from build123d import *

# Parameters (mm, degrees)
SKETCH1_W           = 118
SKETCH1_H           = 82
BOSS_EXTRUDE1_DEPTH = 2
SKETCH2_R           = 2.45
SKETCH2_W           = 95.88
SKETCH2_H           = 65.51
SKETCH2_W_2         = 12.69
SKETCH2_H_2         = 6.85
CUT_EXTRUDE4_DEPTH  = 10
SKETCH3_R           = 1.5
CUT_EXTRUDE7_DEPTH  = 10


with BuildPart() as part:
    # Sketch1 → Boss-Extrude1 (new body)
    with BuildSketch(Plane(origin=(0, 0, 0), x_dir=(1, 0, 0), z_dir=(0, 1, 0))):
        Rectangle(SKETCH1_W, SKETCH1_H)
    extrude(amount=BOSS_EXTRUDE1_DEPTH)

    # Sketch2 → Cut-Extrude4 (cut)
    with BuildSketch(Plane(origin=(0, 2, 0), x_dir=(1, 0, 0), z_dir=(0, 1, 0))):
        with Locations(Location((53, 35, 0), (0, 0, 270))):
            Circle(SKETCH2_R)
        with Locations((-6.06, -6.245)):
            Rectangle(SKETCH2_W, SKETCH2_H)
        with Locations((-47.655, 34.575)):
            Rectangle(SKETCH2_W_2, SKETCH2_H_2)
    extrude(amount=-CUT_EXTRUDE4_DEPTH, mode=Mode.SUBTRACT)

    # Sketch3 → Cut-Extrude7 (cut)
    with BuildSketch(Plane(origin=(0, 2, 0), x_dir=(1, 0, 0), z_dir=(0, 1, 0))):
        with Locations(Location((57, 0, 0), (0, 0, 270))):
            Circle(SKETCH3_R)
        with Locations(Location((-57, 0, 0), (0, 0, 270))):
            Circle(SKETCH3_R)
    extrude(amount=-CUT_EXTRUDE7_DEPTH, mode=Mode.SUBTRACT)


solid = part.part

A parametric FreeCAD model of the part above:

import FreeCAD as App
import Part
import Sketcher


def add_polygon(sketch, points):
    """Adds a closed chain of lines whose ends are joined by coincident constraints."""
    first, n = sketch.GeometryCount, len(points)
    for a, b in zip(points, points[1:] + points[:1]):
        sketch.addGeometry(Part.LineSegment(App.Vector(*a, 0), App.Vector(*b, 0)), False)
    for i in range(n):
        sketch.addConstraint(Sketcher.Constraint("Coincident", first + i, 2, first + (i + 1) % n, 1))

doc = App.newDocument("Part")
body = doc.addObject("PartDesign::Body", "Body")

# Sketch on XZ plane
sketch1 = body.newObject("Sketcher::SketchObject", "Sketch")
sketch1.AttachmentSupport = (doc.getObject("XZ_Plane"), [""])
sketch1.MapMode = "FlatFace"
add_polygon(sketch1, [(-59, -41), (-59, 41), (59, 41), (59, -41)])  # lines 0-3
sketch1.addConstraint(Sketcher.Constraint("Vertical", 0))
sketch1.addConstraint(Sketcher.Constraint("Horizontal", 1))
sketch1.addConstraint(Sketcher.Constraint("Vertical", 2))
sketch1.addConstraint(Sketcher.Constraint("Horizontal", 3))
sketch1.addConstraint(Sketcher.Constraint("Symmetric", 0, 2, 2, 2, -1, 1))
sketch1.addConstraint(Sketcher.Constraint("DistanceX", 1, 1, 1, 2, 118.0))
sketch1.addConstraint(Sketcher.Constraint("DistanceY", 0, 1, 0, 2, 82.0))
pad1 = body.newObject("PartDesign::Pad", "Pad")
pad1.Profile = sketch1
pad1.Length = 2
pad1.Reversed = True

# Sketch on XZ plane
sketch2 = body.newObject("Sketcher::SketchObject", "Sketch001")
sketch2.AttachmentSupport = (doc.getObject("XZ_Plane"), [""])
sketch2.MapMode = "FlatFace"
sketch2.AttachmentOffset = App.Placement(App.Vector(0, 0, -2), App.Rotation())
sketch2.addGeometry(Part.Circle(App.Vector(53, -35, 0), App.Vector(0, 0, 1), 2.5), False)  # 0
add_polygon(sketch2, [(-54, -26.5), (-54, 39), (41.9, 39), (41.9, -26.5)])  # lines 1-4
add_polygon(sketch2, [(-54, -38), (-54, -31.1), (-41.3, -31.1), (-41.3, -38)])  # lines 5-8
sketch2.addConstraint(Sketcher.Constraint("Vertical", 1))
sketch2.addConstraint(Sketcher.Constraint("Horizontal", 2))
sketch2.addConstraint(Sketcher.Constraint("Vertical", 3))
sketch2.addConstraint(Sketcher.Constraint("Horizontal", 4))
sketch2.addConstraint(Sketcher.Constraint("Vertical", 5))
sketch2.addConstraint(Sketcher.Constraint("Horizontal", 6))
sketch2.addConstraint(Sketcher.Constraint("Vertical", 7))
sketch2.addConstraint(Sketcher.Constraint("Horizontal", 8))
sketch2.addConstraint(Sketcher.Constraint("Vertical", 4, 2, 5, 2))
sketch2.addConstraint(Sketcher.Constraint("Diameter", 0, 4.9))
sketch2.addConstraint(Sketcher.Constraint("DistanceX", -1, 1, 0, 3, 53.0))
sketch2.addConstraint(Sketcher.Constraint("DistanceY", 0, 3, -1, 1, 35.0))
sketch2.addConstraint(Sketcher.Constraint("DistanceX", 1, 2, -1, 1, 54.0))
sketch2.addConstraint(Sketcher.Constraint("DistanceY", -1, 1, 1, 2, 39.0))
sketch2.addConstraint(Sketcher.Constraint("DistanceY", 7, 2, -1, 1, 38.0))
sketch2.addConstraint(Sketcher.Constraint("DistanceX", 2, 1, 2, 2, 95.88))
sketch2.addConstraint(Sketcher.Constraint("DistanceX", 6, 1, 6, 2, 12.69))
sketch2.addConstraint(Sketcher.Constraint("DistanceY", 1, 1, 1, 2, 65.51))
sketch2.addConstraint(Sketcher.Constraint("DistanceY", 5, 1, 5, 2, 6.85))
pocket1 = body.newObject("PartDesign::Pocket", "Pocket")
pocket1.Profile = sketch2
pocket1.Length = 10
pocket1.Reversed = True

# Sketch on XZ plane
sketch3 = body.newObject("Sketcher::SketchObject", "Sketch002")
sketch3.AttachmentSupport = (doc.getObject("XZ_Plane"), [""])
sketch3.MapMode = "FlatFace"
sketch3.AttachmentOffset = App.Placement(App.Vector(0, 0, -2), App.Rotation())
sketch3.addGeometry(Part.Circle(App.Vector(57, 0, 0), App.Vector(0, 0, 1), 1.5), False)
sketch3.addGeometry(Part.Circle(App.Vector(-57, 0, 0), App.Vector(0, 0, 1), 1.5), False)
sketch3.addConstraint(Sketcher.Constraint("Equal", 0, 1))
sketch3.addConstraint(Sketcher.Constraint("Symmetric", 0, 3, 1, 3, -1, 1))
sketch3.addConstraint(Sketcher.Constraint("PointOnObject", 0, 3, -1))
sketch3.addConstraint(Sketcher.Constraint("Diameter", 0, 3.0))
sketch3.addConstraint(Sketcher.Constraint("DistanceX", -1, 1, 0, 3, 57.0))
pocket2 = body.newObject("PartDesign::Pocket", "Pocket001")
pocket2.Profile = sketch3
pocket2.Length = 10
pocket2.Reversed = True

doc.recompute()
